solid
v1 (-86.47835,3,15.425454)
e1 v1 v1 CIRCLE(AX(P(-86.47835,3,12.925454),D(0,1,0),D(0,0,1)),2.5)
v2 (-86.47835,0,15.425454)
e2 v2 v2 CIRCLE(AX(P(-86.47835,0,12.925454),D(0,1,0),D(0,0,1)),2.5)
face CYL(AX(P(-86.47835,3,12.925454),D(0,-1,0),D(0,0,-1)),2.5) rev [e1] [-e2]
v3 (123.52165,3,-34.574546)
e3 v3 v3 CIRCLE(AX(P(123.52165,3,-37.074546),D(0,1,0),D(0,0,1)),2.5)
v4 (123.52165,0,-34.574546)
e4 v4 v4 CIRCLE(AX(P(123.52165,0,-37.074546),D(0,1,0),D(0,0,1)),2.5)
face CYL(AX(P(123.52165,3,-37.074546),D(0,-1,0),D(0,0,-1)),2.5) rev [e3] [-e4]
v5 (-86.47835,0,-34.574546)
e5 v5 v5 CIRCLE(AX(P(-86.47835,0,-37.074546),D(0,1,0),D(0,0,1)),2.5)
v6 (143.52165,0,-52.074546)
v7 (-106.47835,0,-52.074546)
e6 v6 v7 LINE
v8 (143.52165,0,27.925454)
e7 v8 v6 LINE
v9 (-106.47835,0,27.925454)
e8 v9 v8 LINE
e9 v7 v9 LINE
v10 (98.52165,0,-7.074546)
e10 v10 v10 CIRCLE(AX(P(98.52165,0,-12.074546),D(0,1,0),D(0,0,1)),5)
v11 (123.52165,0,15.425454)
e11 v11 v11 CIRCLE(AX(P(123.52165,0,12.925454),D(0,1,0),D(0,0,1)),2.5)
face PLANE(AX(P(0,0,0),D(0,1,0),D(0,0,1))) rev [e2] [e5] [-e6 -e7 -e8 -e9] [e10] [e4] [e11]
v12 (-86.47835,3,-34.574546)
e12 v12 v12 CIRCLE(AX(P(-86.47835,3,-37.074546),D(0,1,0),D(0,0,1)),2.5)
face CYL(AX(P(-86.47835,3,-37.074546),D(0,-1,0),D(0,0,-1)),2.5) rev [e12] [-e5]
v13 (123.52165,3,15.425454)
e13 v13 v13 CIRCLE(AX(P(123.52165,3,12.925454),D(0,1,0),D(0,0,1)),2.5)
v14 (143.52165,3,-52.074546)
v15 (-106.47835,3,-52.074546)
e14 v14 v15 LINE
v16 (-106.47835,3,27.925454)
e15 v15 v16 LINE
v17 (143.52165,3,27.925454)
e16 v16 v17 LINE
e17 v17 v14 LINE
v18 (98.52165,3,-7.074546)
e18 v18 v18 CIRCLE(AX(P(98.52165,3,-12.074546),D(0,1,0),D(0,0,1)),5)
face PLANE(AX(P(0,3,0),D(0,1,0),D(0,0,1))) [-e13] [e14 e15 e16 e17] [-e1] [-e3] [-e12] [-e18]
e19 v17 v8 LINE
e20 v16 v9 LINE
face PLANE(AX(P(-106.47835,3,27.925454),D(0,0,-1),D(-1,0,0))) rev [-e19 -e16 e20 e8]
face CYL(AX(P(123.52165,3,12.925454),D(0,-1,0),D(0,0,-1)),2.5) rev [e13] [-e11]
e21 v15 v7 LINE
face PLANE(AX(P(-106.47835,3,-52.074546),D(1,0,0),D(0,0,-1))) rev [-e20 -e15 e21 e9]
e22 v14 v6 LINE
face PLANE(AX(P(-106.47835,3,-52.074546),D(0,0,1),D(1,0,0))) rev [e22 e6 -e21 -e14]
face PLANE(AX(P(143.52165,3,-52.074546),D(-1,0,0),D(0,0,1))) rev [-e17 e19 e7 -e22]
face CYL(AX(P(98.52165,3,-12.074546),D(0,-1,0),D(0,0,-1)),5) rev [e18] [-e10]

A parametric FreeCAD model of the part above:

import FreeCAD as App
import Part
import Sketcher

V = App.Vector
Q = App.Units.Quantity


def add_polygon(sketch, points):
    """Adds a closed chain of lines whose ends are joined by coincident constraints."""
    first, n = sketch.GeometryCount, len(points)
    for a, b in zip(points, points[1:] + points[:1]):
        sketch.addGeometry(Part.LineSegment(App.Vector(*a, 0), App.Vector(*b, 0)), False)
    for i in range(n):
        sketch.addConstraint(Sketcher.Constraint("Coincident", first + i, 2, first + (i + 1) % n, 1))

doc = App.newDocument("Part")
body = doc.addObject("PartDesign::Body", "Body")

# Sketch on XZ plane
sketch1 = doc.addObject("Sketcher::SketchObject", "Sketch")
body.addObject(sketch1)
sketch1.AttachmentSupport = (doc.XZ_Plane, [""])
sketch1.MapMode = "FlatFace"
add_polygon(sketch1, [(-106.5, -52.1), (-106.5, 27.9), (143.5, 27.9), (143.5, -52.1)])  # lines 0-3
sketch1.addGeometry(Part.Circle(V(-86.5, 12.9, 0), V(0, 0, 1), 2.5), False)  # 4
sketch1.addGeometry(Part.Circle(V(123.5, 12.9, 0), V(0, 0, 1), 2.5), False)  # 5
sketch1.addGeometry(Part.Circle(V(-86.5, -37.1, 0), V(0, 0, 1), 2.5), False)  # 6
sketch1.addGeometry(Part.Circle(V(98.5, -12.1, 0), V(0, 0, 1), 5), False)  # 7
sketch1.addGeometry(Part.Circle(V(123.5, -37.1, 0), V(0, 0, 1), 2.5), False)  # 8
sketch1.addConstraint([
    Sketcher.Constraint("Vertical", 0),
    Sketcher.Constraint("Horizontal", 1),
    Sketcher.Constraint("Vertical", 2),
    Sketcher.Constraint("Horizontal", 3),
    Sketcher.Constraint("Equal", 4, 5),
    Sketcher.Constraint("Equal", 5, 6),
    Sketcher.Constraint("Equal", 6, 8),
    Sketcher.Constraint("Horizontal", 4, 3, 5, 3),
    Sketcher.Constraint("Horizontal", 6, 3, 8, 3),
    Sketcher.Constraint("Vertical", 4, 3, 6, 3),
    Sketcher.Constraint("Vertical", 5, 3, 8, 3),
    Sketcher.Constraint("Diameter", 4, Q("5 mm")),
    Sketcher.Constraint("Diameter", 7, Q("10 mm")),
    Sketcher.Constraint("DistanceX", 1, 1, 1, 2, Q("250 mm")),
    Sketcher.Constraint("DistanceY", 0, 1, 0, 2, Q("80 mm")),
    Sketcher.Constraint("DistanceX", 4, 3, 5, 3, Q("210 mm")),
    Sketcher.Constraint("DistanceY", 6, 3, 4, 3, Q("50 mm")),
    Sketcher.Constraint("DistanceX", 7, 3, 5, 3, Q("25 mm")),
    Sketcher.Constraint("DistanceY", 7, 3, 5, 3, Q("25 mm")),
    Sketcher.Constraint("DistanceX", 0, 2, 4, 3, Q("20 mm")),
    Sketcher.Constraint("DistanceY", 4, 3, 0, 2, Q("15 mm")),
    Sketcher.Constraint("DistanceX", 4, 3, -1, 1, Q("86.47835 mm")),
    Sketcher.Constraint("DistanceY", -1, 1, 4, 3, Q("12.925454 mm")),
])
pad1 = doc.addObject("PartDesign::Pad", "Pad")
body.addObject(pad1)
pad1.Profile = sketch1
pad1.Length = 3
pad1.Reversed = True

doc.recompute()
